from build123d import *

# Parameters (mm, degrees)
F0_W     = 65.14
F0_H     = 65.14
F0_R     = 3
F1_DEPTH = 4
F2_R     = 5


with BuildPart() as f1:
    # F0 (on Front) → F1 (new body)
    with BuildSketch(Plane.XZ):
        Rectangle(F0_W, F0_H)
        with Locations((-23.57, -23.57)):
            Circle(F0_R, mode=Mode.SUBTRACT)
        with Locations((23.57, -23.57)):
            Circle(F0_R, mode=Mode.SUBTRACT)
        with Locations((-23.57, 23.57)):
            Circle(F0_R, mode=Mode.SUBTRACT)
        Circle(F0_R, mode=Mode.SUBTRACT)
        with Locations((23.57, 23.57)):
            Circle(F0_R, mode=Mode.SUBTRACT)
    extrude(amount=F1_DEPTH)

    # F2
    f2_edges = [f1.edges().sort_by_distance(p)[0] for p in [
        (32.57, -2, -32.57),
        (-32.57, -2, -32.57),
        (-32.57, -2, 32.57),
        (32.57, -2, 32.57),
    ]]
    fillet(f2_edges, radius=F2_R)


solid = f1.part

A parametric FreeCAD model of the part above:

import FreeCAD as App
import Part
import Sketcher
from FreeCAD import Vector
Q = App.Units.Quantity


def edges_at(feature, points):
    """Names of the edges that pass closest to the given points."""
    edges = feature.Shape.Edges
    near = lambda p: min(range(len(edges)), key=lambda i: edges[i].distToShape(Part.Vertex(*p))[0])
    return sorted({f"Edge{near(p) + 1}" for p in points})


def add_polygon(sketch, points):
    """Adds a closed chain of lines whose ends are joined by coincident constraints."""
    first, n = sketch.GeometryCount, len(points)
    for a, b in zip(points, points[1:] + points[:1]):
        sketch.addGeometry(Part.LineSegment(App.Vector(*a, 0), App.Vector(*b, 0)), False)
    for i in range(n):
        sketch.addConstraint(Sketcher.Constraint("Coincident", first + i, 2, first + (i + 1) % n, 1))

doc = App.newDocument("Part")
params = doc.addObject("Spreadsheet::Sheet", "Params")
for row, (alias, value) in enumerate([
    ("sketch1_diameter", "6 mm"),
    ("sketch1_width", "65.14 mm"),
    ("pad1_length", "4 mm"),
    ("fillet_radius", "5 mm"),
], start=1):
    params.set(f"A{row}", alias)
    params.set(f"B{row}", "=" + value)
    params.setAlias(f"B{row}", alias)

body = doc.addObject("PartDesign::Body", "Body")

# Sketch on XZ plane
sketch1 = doc.addObject("Sketcher::SketchObject", "Sketch")
body.addObject(sketch1)
sketch1.AttachmentSupport = (doc.XZ_Plane, [""])
sketch1.MapMode = "FlatFace"
add_polygon(sketch1, [(-32.6, 32.6), (-32.6, -32.6), (32.6, -32.6), (32.6, 32.6)])  # lines 0-3
sketch1.addGeometry(Part.Circle(Vector(-23.6, -23.6, 0), Vector(0, 0, 1), 3), False)  # 4
sketch1.addGeometry(Part.Circle(Vector(23.6, -23.6, 0), Vector(0, 0, 1), 3), False)  # 5
sketch1.addGeometry(Part.Circle(Vector(-23.6, 23.6, 0), Vector(0, 0, 1), 3), False)  # 6
sketch1.addGeometry(Part.Circle(Vector(0, 0, 0), Vector(0, 0, 1), 3), False)  # 7
sketch1.addGeometry(Part.Circle(Vector(23.6, 23.6, 0), Vector(0, 0, 1), 3), False)  # 8
sketch1.addConstraint([
    Sketcher.Constraint("Vertical", 0),
    Sketcher.Constraint("Horizontal", 1),
    Sketcher.Constraint("Vertical", 2),
    Sketcher.Constraint("Horizontal", 3),
    Sketcher.Constraint("Coincident", 7, 3, -1, 1),
    Sketcher.Constraint("Equal", 4, 5),
    Sketcher.Constraint("Equal", 5, 6),
    Sketcher.Constraint("Equal", 6, 7),
    Sketcher.Constraint("Equal", 7, 8),
    Sketcher.Constraint("Symmetric", 5, 3, 6, 3, -1, 1),
    Sketcher.Constraint("Symmetric", 4, 3, 8, 3, -1, 1),
    Sketcher.Constraint("Symmetric", 0, 2, 2, 2, -1, 1),
    Sketcher.Constraint("Symmetric", 4, 3, 5, 3, -2),
    Sketcher.Constraint("Equal", 3, 0),
    Sketcher.Constraint("Diameter", 4, Q("6 mm")),
    Sketcher.Constraint("DistanceX", 0, 2, 4, 3, Q("9 mm")),
    Sketcher.Constraint("DistanceY", 0, 2, 4, 3, Q("9 mm")),
    Sketcher.Constraint("DistanceX", 1, 1, 1, 2, Q("65.14 mm")),
])
sketch1.setExpression("Constraints[18]", "Params.sketch1_diameter")
sketch1.setExpression("Constraints[21]", "Params.sketch1_width")
pad1 = doc.addObject("PartDesign::Pad", "Pad")
body.addObject(pad1)
pad1.Profile = sketch1
pad1.setExpression("Length", "Params.pad1_length")
doc.recompute()

fillet = doc.addObject("PartDesign::Fillet", "Fillet")
body.addObject(fillet)
fillet.Base = (pad1, edges_at(pad1, [
    (32.57, -2, -32.57),
    (-32.57, -2, -32.57),
    (-32.57, -2, 32.57),
    (32.57, -2, 32.57),
]))
fillet.setExpression("Radius", "Params.fillet_radius")

doc.recompute()
